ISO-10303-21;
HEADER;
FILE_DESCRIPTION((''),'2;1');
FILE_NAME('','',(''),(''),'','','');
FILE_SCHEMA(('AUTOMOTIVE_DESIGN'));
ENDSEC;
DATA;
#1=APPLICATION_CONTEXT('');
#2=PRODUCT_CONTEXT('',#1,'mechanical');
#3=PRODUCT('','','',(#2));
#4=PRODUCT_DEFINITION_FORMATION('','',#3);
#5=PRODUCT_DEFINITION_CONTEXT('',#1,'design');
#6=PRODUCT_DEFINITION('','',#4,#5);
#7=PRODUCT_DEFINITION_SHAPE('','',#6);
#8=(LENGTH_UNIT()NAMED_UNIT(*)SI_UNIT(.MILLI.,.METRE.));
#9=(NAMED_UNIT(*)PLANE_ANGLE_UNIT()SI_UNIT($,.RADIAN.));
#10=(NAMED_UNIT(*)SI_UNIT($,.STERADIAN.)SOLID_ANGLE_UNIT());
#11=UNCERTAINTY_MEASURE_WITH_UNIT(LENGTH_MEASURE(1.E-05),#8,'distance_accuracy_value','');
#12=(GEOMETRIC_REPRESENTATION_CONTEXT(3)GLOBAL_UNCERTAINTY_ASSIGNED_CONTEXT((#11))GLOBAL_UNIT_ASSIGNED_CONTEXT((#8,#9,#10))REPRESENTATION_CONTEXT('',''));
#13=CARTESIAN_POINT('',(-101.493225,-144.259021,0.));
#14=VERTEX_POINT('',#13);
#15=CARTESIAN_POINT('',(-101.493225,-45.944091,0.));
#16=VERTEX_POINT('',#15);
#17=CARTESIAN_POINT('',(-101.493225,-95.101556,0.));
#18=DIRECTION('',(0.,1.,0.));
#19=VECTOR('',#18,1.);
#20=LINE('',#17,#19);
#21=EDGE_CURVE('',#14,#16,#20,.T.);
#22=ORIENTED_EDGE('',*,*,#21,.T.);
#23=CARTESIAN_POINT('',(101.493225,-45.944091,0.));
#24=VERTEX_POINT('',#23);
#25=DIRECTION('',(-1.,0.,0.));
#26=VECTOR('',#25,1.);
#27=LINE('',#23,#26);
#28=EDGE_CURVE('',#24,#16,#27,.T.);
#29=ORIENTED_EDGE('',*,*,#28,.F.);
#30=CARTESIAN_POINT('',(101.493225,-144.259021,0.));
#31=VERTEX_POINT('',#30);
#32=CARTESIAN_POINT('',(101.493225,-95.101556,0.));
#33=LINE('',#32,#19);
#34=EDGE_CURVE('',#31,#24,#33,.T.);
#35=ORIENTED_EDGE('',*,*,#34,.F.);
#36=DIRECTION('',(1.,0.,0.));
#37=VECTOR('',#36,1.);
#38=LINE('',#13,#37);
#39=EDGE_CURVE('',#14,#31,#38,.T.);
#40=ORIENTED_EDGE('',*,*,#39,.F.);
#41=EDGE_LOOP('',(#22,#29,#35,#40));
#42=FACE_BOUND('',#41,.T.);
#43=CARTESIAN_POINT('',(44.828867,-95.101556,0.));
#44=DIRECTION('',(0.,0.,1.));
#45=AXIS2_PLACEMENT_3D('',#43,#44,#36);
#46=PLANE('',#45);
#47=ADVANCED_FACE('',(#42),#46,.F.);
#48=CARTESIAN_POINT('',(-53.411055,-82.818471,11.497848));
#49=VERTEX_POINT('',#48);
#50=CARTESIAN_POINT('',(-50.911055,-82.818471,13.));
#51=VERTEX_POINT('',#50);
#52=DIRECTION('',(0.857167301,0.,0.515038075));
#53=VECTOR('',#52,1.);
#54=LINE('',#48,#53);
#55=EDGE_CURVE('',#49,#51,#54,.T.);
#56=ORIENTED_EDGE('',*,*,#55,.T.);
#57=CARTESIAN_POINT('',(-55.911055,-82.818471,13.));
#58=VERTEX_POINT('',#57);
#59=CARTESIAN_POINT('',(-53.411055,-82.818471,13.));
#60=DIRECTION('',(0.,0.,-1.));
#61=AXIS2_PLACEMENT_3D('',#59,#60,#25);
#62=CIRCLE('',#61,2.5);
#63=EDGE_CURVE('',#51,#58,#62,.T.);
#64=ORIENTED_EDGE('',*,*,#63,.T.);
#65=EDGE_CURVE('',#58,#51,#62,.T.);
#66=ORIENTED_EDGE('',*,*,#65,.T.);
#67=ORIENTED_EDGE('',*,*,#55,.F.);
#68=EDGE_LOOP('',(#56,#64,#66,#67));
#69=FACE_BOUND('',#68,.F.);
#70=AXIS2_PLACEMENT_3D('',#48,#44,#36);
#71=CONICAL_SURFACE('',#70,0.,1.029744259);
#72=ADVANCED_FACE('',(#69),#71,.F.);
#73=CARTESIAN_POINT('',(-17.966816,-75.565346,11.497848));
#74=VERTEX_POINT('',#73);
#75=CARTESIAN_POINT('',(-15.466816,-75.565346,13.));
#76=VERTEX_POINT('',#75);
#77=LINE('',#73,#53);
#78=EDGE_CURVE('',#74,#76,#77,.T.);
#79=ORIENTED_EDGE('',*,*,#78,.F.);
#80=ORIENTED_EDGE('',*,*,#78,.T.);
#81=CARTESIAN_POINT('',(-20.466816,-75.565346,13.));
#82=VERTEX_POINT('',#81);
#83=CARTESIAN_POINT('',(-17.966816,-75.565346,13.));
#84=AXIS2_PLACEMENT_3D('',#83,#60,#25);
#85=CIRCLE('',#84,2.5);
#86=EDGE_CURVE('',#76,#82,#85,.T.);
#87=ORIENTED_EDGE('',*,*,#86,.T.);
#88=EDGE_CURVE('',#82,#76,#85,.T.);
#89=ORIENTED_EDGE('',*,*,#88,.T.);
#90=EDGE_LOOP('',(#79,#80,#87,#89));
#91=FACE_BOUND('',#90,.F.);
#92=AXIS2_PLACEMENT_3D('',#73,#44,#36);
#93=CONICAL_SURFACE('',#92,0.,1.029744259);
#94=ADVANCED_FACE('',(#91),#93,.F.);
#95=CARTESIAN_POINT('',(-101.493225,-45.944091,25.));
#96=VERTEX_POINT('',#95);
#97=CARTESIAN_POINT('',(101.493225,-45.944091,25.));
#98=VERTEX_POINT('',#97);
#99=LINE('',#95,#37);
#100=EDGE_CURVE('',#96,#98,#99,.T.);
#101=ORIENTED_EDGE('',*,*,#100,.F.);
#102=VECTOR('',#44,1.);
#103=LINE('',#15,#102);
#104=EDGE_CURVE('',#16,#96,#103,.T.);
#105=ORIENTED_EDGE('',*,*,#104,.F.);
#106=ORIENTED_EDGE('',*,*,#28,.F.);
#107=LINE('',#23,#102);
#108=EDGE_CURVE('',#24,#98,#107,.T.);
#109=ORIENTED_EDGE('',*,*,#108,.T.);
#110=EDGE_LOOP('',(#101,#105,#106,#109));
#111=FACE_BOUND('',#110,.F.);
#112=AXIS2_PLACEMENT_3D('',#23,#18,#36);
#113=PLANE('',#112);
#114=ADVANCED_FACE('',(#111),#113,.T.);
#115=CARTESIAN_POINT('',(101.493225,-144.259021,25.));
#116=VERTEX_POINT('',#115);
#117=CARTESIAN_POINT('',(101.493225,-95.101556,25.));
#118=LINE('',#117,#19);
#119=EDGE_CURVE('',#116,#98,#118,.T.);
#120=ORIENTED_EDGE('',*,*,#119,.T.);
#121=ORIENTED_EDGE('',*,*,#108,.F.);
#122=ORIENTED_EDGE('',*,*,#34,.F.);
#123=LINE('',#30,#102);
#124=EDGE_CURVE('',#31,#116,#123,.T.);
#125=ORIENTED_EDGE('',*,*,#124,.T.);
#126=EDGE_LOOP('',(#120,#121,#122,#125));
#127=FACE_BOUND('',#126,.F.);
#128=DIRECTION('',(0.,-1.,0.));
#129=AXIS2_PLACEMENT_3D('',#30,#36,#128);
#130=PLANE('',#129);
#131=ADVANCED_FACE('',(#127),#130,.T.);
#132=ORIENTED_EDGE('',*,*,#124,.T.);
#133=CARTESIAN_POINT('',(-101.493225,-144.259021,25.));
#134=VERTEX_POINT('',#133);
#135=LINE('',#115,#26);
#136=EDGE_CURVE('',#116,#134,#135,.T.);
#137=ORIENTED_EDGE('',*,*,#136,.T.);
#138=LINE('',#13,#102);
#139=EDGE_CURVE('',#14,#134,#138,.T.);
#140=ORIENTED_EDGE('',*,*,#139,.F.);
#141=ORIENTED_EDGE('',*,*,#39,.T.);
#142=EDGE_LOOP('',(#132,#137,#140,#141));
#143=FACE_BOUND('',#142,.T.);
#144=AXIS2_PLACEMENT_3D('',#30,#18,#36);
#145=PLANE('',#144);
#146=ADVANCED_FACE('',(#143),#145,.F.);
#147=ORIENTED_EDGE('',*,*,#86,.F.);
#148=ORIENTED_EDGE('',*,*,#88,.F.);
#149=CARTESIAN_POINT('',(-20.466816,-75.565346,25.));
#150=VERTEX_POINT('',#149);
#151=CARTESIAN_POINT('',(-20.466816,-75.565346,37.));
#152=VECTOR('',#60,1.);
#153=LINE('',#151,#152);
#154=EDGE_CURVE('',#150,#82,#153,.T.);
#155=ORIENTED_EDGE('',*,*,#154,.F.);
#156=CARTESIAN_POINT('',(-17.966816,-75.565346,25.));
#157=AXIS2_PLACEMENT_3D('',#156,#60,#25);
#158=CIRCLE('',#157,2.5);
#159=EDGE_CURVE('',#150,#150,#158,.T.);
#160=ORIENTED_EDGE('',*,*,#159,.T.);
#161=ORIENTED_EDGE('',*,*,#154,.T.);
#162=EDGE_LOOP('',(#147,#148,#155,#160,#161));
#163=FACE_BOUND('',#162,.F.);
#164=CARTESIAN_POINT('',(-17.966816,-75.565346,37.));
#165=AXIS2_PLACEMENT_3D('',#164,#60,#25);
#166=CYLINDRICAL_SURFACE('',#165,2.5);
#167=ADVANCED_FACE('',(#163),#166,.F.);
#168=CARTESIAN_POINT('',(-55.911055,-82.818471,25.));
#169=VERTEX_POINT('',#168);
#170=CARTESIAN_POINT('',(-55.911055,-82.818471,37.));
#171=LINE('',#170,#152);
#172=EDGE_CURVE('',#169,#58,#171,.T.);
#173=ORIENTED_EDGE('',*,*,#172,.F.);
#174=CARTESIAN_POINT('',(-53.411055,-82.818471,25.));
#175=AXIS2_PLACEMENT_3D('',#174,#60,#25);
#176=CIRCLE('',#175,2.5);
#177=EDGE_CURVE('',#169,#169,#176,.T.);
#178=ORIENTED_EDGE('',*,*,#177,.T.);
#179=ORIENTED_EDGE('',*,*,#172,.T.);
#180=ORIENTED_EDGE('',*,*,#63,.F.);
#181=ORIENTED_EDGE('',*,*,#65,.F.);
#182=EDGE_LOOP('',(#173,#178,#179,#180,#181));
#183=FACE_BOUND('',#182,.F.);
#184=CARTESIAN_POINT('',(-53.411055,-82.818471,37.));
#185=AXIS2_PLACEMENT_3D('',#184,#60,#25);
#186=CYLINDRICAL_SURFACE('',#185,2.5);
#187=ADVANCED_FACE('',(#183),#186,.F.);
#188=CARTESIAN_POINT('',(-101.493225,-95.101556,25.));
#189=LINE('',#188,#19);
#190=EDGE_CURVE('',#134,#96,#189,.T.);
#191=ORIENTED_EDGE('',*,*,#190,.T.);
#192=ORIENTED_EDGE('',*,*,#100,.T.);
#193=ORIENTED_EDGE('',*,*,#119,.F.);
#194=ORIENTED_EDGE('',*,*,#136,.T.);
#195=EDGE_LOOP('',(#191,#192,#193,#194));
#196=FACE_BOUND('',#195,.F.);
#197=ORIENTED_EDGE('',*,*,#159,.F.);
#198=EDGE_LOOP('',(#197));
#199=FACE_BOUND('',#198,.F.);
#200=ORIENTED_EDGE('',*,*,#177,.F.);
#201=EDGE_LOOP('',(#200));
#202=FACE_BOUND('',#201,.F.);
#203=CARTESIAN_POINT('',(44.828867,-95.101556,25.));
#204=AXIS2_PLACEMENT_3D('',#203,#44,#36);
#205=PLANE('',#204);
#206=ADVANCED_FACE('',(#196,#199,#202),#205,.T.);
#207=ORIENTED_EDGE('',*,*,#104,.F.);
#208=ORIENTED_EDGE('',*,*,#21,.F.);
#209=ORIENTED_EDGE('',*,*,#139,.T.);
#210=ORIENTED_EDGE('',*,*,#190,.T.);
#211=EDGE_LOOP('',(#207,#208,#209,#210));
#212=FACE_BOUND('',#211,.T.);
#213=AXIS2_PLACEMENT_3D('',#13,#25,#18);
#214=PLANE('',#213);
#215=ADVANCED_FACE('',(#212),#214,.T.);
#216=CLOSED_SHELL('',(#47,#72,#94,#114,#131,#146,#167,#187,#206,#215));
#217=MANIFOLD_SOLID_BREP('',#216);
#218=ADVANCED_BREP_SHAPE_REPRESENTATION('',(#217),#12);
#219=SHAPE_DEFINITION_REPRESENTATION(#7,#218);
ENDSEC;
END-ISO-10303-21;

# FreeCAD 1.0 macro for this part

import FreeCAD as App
import Part
import Sketcher

V = App.Vector
Q = App.Units.Quantity

doc = App.newDocument("Part")
body = doc.addObject("PartDesign::Body", "Body")

sketch1 = body.newObject("Sketcher::SketchObject", "Sketch")
sketch1.AttachmentSupport = (doc.getObject("XY_Plane"), [""])
sketch1.MapMode = "FlatFace"
sketch1.addGeometry(Part.LineSegment(V(-101, -46, 0), V(-101, -144, 0)), False)
sketch1.addGeometry(Part.LineSegment(V(-101, -144, 0), V(12, -144, 0)), False)
sketch1.addGeometry(Part.LineSegment(V(12, -144, 0), V(12, -46, 0)), False)
sketch1.addGeometry(Part.LineSegment(V(12, -46, 0), V(-101, -46, 0)), False)
sketch1.addConstraint(Sketcher.Constraint("Coincident", 0, 2, 1, 1))
sketch1.addConstraint(Sketcher.Constraint("Coincident", 1, 2, 2, 1))
sketch1.addConstraint(Sketcher.Constraint("Coincident", 2, 2, 3, 1))
sketch1.addConstraint(Sketcher.Constraint("Coincident", 3, 2, 0, 1))
sketch1.addConstraint(Sketcher.Constraint("Vertical", 0))
sketch1.addConstraint(Sketcher.Constraint("Horizontal", 1))
sketch1.addConstraint(Sketcher.Constraint("Vertical", 2))
sketch1.addConstraint(Sketcher.Constraint("Horizontal", 3))
sketch1.addConstraint(Sketcher.Constraint("DistanceY", 0, 2, 0, 1, Q("98.31493 mm")))
sketch1.addConstraint(Sketcher.Constraint("DistanceX", 1, 1, 1, 2, Q("113.328716 mm")))
sketch1.addConstraint(Sketcher.Constraint("DistanceY", 0, 2, -1, 1, Q("144.259021 mm")))
sketch1.addConstraint(Sketcher.Constraint("DistanceX", -1, 1, 1, 2, Q("11.835491 mm")))
pad1 = body.newObject("PartDesign::Pad", "Pad")
pad1.Profile = sketch1
pad1.Length = 25
body2 = doc.addObject("PartDesign::Body", "Body001")
doc.recompute()

body2.BaseFeature = body
doc.recompute()

mirroring = doc.addObject("Part::Mirroring", "Mirroring")
mirroring.Source = body
mirroring.Base = V(0, 0, 0)
mirroring.Normal = V(1, 0, 0)
body3 = doc.addObject("PartDesign::Body", "Body002")
body3.BaseFeature = mirroring
boolean = body2.newObject("PartDesign::Boolean", "Boolean")
boolean.Type = "Fuse"
boolean.addObjects([body3])
doc.recompute()

sketch2 = body2.newObject("Sketcher::SketchObject", "Sketch001")
sketch2.AttachmentSupport = (doc.getObject("XY_Plane001"), [""])
sketch2.MapMode = "FlatFace"
sketch2.AttachmentOffset = App.Placement(V(0, 0, 25), App.Rotation())
sketch2.addGeometry(Part.Circle(V(-53.4, -82.8, 0), V(0, 0, 1), 2.5), False)
sketch2.addGeometry(Part.Circle(V(-18, -75.6, 0), V(0, 0, 1), 2.5), False)
sketch2.addConstraint(Sketcher.Constraint("Equal", 0, 1))
sketch2.addConstraint(Sketcher.Constraint("Diameter", 0, Q("5 mm")))
sketch2.addConstraint(Sketcher.Constraint("DistanceY", 0, 3, -1, 1, Q("82.818471 mm")))
sketch2.addConstraint(Sketcher.Constraint("DistanceX", 0, 3, 1, 3, Q("35.444239 mm")))
sketch2.addConstraint(Sketcher.Constraint("DistanceX", 0, 3, -1, 1, Q("53.411055 mm")))
sketch2.addConstraint(Sketcher.Constraint("DistanceY", 1, 3, -1, 1, Q("75.565346 mm")))
doc.recompute()
hole = body2.newObject("PartDesign::Hole", "Hole")
hole.Profile = sketch2
hole.ThreadType = "None"
hole.Diameter = 5
hole.DepthType = "Dimension"
hole.Depth = 12
hole.DrillPoint = "Angled"
hole.DrillPointAngle = 118
mirroring.Visibility = False

doc.recompute()
